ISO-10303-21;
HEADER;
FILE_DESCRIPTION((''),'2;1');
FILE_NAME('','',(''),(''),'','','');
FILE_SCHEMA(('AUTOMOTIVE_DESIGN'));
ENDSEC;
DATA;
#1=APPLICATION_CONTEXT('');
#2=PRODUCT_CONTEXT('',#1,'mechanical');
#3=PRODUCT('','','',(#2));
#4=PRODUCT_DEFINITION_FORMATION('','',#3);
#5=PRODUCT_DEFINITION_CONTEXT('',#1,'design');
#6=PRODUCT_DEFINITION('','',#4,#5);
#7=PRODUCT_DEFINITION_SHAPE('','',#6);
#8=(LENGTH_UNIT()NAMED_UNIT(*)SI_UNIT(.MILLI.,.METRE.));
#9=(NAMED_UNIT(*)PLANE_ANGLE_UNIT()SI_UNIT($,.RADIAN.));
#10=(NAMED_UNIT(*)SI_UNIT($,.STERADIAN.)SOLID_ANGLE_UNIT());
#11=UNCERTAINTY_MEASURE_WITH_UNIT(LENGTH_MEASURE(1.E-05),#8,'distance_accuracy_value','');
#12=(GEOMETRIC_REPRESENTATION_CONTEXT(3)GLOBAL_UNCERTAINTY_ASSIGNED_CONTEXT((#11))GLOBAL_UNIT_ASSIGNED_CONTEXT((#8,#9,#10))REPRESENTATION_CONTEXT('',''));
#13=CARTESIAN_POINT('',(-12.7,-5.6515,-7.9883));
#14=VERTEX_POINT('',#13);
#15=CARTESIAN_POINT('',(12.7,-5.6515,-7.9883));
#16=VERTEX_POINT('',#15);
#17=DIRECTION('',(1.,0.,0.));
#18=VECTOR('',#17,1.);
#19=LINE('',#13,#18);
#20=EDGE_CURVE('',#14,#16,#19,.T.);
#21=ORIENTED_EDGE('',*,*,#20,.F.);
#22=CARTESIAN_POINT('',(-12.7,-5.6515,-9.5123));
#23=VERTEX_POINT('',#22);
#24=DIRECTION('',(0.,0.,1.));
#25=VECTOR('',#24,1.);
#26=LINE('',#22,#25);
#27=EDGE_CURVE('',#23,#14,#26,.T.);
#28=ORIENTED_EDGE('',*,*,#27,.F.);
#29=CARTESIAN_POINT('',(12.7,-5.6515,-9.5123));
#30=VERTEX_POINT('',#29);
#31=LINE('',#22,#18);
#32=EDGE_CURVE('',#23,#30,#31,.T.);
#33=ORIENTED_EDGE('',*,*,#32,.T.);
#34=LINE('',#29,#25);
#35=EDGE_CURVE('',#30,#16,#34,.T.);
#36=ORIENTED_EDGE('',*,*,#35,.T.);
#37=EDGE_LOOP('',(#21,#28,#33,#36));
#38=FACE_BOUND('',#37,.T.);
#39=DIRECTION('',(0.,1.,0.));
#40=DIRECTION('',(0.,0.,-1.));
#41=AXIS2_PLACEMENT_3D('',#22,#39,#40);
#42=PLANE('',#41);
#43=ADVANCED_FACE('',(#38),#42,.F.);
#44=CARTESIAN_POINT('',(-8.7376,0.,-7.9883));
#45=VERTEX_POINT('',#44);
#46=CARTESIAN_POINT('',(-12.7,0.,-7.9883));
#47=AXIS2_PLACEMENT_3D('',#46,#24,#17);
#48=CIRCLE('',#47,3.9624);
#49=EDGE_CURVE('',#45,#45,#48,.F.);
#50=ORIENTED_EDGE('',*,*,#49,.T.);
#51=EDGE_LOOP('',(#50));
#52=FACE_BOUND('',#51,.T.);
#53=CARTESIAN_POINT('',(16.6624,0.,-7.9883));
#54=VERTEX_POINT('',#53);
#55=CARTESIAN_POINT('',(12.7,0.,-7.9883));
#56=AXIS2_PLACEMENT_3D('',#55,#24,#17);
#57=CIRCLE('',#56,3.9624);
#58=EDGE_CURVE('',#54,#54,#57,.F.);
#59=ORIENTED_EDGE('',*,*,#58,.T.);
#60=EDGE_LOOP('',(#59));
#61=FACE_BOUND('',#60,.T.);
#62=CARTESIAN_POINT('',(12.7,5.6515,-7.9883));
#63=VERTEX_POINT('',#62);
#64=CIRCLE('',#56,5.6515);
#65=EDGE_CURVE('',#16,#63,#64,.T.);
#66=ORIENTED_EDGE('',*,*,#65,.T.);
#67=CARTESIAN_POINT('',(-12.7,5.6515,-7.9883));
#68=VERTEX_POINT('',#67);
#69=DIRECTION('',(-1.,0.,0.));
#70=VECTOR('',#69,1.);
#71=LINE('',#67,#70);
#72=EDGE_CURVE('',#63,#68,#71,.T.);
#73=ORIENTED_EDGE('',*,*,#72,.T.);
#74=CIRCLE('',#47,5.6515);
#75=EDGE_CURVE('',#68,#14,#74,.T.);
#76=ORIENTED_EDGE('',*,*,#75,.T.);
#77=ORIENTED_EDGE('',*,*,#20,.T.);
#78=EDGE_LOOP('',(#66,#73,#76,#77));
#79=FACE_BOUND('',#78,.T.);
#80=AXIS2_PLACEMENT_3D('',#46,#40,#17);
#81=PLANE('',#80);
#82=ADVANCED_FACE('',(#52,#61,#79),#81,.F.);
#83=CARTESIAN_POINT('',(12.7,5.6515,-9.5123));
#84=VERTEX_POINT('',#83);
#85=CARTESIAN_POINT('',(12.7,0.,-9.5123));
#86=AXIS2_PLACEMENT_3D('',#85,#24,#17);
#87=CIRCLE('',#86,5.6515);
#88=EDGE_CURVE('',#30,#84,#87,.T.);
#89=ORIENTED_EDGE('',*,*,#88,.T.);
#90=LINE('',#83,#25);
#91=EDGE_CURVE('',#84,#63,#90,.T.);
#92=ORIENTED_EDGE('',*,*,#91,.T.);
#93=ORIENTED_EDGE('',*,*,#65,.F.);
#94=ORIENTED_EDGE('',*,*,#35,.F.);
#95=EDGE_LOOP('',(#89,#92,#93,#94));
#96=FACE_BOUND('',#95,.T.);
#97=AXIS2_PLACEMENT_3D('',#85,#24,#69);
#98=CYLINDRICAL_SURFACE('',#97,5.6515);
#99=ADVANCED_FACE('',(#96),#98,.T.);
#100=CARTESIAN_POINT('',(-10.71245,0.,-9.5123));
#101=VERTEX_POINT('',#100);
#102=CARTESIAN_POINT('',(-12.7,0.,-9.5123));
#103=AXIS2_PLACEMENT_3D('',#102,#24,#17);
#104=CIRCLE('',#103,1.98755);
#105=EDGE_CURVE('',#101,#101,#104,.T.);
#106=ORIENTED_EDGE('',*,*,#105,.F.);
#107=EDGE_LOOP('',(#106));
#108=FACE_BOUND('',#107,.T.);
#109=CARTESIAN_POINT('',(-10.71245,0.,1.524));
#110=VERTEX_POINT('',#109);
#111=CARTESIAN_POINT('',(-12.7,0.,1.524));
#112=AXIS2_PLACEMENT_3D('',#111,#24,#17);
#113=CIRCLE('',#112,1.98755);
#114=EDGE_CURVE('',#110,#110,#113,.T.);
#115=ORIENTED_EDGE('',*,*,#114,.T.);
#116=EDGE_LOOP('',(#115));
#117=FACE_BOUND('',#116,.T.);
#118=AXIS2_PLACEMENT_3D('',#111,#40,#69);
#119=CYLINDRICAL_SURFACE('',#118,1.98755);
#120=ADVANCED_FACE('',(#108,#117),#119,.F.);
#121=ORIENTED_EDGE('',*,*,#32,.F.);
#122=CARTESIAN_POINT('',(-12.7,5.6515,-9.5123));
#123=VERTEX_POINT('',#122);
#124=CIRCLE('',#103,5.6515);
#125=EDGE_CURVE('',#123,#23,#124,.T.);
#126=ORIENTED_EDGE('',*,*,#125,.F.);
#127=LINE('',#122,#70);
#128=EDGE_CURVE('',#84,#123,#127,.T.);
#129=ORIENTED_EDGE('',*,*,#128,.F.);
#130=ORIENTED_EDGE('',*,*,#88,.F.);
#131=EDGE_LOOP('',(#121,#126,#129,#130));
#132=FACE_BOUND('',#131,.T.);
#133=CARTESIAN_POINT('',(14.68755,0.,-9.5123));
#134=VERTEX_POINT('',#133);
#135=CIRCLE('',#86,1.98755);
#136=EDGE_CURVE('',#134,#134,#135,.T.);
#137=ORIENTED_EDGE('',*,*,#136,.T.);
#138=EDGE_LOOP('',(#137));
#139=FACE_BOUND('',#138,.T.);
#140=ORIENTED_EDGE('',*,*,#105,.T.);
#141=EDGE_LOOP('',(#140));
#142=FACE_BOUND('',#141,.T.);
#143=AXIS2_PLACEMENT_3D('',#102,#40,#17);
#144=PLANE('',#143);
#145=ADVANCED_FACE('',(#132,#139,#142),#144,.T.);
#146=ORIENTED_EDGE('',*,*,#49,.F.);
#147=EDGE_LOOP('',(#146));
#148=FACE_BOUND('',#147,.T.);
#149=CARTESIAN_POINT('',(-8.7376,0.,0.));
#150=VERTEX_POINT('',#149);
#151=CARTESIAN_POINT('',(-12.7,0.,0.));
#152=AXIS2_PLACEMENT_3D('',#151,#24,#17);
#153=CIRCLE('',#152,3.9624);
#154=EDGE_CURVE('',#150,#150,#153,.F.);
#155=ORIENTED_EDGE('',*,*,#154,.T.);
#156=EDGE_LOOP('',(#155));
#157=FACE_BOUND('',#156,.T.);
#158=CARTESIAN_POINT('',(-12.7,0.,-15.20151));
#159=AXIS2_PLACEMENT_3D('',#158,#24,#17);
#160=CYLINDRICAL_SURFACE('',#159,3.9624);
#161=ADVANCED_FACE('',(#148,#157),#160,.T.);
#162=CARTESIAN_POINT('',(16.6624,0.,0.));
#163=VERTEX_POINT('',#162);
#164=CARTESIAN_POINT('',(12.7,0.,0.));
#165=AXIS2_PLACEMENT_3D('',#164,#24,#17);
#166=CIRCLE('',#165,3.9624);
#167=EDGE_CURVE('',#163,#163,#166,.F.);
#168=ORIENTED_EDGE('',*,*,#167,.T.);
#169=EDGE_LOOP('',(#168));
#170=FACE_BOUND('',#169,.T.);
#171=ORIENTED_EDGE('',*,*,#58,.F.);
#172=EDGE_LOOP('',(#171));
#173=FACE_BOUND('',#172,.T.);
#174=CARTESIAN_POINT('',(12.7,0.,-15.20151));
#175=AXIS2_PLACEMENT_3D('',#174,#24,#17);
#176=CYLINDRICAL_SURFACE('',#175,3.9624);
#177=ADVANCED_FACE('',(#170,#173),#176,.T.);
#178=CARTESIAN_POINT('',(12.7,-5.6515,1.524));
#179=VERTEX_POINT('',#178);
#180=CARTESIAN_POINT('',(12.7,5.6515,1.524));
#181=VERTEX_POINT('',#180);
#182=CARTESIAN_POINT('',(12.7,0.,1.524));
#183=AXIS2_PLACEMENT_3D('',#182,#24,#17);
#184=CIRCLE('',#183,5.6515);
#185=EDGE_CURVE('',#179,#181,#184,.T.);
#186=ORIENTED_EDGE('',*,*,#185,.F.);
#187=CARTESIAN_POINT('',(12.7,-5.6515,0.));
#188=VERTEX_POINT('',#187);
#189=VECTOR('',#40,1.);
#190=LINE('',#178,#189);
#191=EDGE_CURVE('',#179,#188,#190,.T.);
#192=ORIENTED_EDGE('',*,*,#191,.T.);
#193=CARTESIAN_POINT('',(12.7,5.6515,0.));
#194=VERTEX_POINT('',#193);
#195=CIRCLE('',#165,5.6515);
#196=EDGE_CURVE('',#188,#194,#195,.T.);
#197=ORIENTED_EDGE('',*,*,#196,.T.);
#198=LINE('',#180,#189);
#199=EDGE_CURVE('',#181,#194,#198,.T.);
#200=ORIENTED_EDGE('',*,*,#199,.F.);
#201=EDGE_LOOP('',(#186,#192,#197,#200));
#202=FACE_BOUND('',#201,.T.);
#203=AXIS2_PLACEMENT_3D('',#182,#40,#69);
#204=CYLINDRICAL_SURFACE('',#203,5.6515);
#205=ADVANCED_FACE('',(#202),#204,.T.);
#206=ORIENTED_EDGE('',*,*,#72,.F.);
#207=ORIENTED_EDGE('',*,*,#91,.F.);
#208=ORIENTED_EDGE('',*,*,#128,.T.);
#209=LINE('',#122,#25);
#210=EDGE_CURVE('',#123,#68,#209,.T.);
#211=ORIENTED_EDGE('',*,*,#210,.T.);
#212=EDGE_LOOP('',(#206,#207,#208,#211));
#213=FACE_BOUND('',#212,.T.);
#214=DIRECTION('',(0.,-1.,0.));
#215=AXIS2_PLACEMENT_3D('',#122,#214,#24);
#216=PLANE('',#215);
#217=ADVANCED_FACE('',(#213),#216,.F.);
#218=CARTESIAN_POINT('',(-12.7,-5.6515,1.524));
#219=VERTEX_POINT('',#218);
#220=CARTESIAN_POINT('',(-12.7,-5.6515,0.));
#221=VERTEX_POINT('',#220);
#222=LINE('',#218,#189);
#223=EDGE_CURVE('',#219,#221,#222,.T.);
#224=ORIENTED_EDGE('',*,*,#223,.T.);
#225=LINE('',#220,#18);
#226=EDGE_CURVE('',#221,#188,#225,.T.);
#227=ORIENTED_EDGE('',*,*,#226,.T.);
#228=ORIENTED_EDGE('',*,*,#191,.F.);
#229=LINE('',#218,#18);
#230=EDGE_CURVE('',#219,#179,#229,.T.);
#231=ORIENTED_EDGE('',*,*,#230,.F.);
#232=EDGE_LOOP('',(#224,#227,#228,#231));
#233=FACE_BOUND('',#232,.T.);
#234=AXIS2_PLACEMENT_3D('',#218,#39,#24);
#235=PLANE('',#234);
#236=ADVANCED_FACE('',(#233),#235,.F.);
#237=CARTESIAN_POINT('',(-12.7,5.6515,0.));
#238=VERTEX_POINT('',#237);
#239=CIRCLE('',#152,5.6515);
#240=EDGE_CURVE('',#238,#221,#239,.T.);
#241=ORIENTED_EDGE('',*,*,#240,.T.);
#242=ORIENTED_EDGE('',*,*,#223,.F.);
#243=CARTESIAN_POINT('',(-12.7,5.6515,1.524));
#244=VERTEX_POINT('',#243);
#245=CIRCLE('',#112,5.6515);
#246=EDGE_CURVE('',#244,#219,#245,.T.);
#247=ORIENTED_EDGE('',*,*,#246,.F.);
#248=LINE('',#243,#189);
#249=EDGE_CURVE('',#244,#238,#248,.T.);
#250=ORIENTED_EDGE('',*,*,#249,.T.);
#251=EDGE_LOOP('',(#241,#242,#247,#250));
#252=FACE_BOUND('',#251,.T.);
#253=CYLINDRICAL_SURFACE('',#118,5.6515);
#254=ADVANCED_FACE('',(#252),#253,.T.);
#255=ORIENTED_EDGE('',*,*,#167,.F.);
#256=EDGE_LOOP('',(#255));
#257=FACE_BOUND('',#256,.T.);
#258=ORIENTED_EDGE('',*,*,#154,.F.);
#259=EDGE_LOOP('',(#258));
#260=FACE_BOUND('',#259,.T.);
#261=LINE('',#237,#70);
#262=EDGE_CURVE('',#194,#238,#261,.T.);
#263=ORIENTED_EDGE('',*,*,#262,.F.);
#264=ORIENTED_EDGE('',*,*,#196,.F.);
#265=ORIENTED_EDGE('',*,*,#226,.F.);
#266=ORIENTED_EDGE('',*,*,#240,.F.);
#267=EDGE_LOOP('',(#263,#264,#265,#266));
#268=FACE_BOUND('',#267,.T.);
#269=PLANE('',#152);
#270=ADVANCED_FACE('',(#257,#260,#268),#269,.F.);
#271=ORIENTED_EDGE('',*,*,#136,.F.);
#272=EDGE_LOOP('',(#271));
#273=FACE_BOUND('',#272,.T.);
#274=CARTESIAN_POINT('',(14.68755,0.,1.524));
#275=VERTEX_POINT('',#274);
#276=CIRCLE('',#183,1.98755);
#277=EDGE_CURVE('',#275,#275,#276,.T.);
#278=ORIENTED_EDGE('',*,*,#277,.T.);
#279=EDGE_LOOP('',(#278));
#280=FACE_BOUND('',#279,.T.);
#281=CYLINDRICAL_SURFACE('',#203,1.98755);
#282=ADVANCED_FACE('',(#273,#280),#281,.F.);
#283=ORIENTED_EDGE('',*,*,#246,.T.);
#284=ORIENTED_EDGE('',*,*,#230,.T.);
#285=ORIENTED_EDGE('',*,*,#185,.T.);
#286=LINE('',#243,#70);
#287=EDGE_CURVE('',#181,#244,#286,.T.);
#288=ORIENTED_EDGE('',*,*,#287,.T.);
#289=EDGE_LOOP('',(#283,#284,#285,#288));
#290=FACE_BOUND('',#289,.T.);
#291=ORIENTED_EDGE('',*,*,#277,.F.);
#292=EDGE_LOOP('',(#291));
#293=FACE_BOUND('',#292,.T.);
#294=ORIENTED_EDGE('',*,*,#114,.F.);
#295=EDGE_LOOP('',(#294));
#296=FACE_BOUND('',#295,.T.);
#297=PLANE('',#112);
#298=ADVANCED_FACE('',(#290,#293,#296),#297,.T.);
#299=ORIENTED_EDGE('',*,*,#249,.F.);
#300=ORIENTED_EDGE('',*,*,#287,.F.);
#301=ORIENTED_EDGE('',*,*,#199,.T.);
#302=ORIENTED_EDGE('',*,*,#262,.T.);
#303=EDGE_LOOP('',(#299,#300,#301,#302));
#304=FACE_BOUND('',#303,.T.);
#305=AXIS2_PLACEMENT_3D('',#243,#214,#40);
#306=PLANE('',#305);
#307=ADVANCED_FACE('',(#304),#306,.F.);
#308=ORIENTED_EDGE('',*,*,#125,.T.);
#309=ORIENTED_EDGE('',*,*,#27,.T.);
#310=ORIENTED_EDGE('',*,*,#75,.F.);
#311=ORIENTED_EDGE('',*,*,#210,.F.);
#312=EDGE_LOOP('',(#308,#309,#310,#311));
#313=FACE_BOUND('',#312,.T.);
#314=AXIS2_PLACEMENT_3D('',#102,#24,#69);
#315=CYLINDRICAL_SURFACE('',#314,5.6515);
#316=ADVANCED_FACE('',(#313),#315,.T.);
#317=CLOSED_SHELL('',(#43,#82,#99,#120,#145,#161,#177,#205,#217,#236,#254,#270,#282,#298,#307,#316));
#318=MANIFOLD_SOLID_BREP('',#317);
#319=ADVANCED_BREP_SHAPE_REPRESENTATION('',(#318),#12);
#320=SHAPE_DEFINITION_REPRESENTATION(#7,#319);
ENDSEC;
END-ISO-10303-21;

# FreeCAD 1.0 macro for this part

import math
import FreeCAD as App
import Part
import Sketcher
from FreeCAD import Vector
Q = App.Units.Quantity

doc = App.newDocument("Part")
body = doc.addObject("PartDesign::Body", "Body")

sketch1 = body.newObject("Sketcher::SketchObject", "Sketch")
sketch1.AttachmentSupport = (doc.getObject("XY_Plane"), [""])
sketch1.MapMode = "FlatFace"
sketch1.addGeometry(Part.LineSegment(Vector(12.7, 5.7, 0), Vector(-12.7, 5.7, 0)), False)
sketch1.addGeometry(Part.ArcOfCircle(Part.Circle(Vector(-12.7, 0, 0), Vector(0, 0, 1), 5.7), math.radians(90), math.radians(270)), False)
sketch1.addGeometry(Part.LineSegment(Vector(-12.7, -5.7, 0), Vector(12.7, -5.7, 0)), False)
sketch1.addGeometry(Part.ArcOfCircle(Part.Circle(Vector(12.7, 0, 0), Vector(0, 0, 1), 5.7), math.radians(-90), math.radians(90)), False)
sketch1.addGeometry(Part.Circle(Vector(12.7, 0, 0), Vector(0, 0, 1), 2), False)
sketch1.addGeometry(Part.Circle(Vector(-12.7, 0, 0), Vector(0, 0, 1), 2), False)
sketch1.addConstraint(Sketcher.Constraint("Tangent", 0, 2, 1, 1))
sketch1.addConstraint(Sketcher.Constraint("Tangent", 1, 2, 2, 1))
sketch1.addConstraint(Sketcher.Constraint("Tangent", 2, 2, 3, 1))
sketch1.addConstraint(Sketcher.Constraint("Tangent", 3, 2, 0, 1))
sketch1.addConstraint(Sketcher.Constraint("Horizontal", 0))
sketch1.addConstraint(Sketcher.Constraint("Horizontal", 2))
sketch1.addConstraint(Sketcher.Constraint("Coincident", 4, 3, 3, 3))
sketch1.addConstraint(Sketcher.Constraint("Coincident", 5, 3, 1, 3))
sketch1.addConstraint(Sketcher.Constraint("Equal", 4, 5))
sketch1.addConstraint(Sketcher.Constraint("Symmetric", 1, 3, 3, 3, -1, 1))
sketch1.addConstraint(Sketcher.Constraint("DistanceX", 0, 2, 0, 1, Q("1 in")))
sketch1.addConstraint(Sketcher.Constraint("Diameter", 4, Q("0.1565 in")))
sketch1.addConstraint(Sketcher.Constraint("Radius", 1, Q("0.2225 in")))
pad1 = body.newObject("PartDesign::Pad", "Pad")
pad1.Profile = sketch1
pad1.Length = Q("0.06 in")

sketch2 = body.newObject("Sketcher::SketchObject", "Sketch001")
sketch2.AttachmentSupport = (doc.getObject("XY_Plane"), [""])
sketch2.MapMode = "FlatFace"
sketch2.addGeometry(Part.Circle(Vector(12.7, 0, 0), Vector(0, 0, 1), 4), False)
sketch2.addGeometry(Part.Circle(Vector(12.7, 0, 0), Vector(0, 0, 1), 2), False)
sketch2.addGeometry(Part.Circle(Vector(-12.7, 0, 0), Vector(0, 0, 1), 4), False)
sketch2.addGeometry(Part.Circle(Vector(-12.7, 0, 0), Vector(0, 0, 1), 2), False)
sketch2.addConstraint(Sketcher.Constraint("Coincident", 1, 3, 0, 3))
sketch2.addConstraint(Sketcher.Constraint("Coincident", 3, 3, 2, 3))
sketch2.addConstraint(Sketcher.Constraint("Equal", 0, 2))
sketch2.addConstraint(Sketcher.Constraint("Equal", 1, 3))
sketch2.addConstraint(Sketcher.Constraint("Symmetric", 0, 3, 2, 3, -1, 1))
sketch2.addConstraint(Sketcher.Constraint("PointOnObject", 0, 3, -1))
sketch2.addConstraint(Sketcher.Constraint("Diameter", 0, Q("0.312 in")))
sketch2.addConstraint(Sketcher.Constraint("DistanceX", 2, 3, 0, 3, Q("1 in")))
sketch2.addConstraint(Sketcher.Constraint("Diameter", 1, Q("0.1565 in")))
pad2 = body.newObject("PartDesign::Pad", "Pad001")
pad2.Profile = sketch2
pad2.Length = 3.99415
pad2.Reversed = True
doc.recompute()

datumplane = body.newObject("PartDesign::Plane", "DatumPlane")
datumplane.AttachmentSupport = (doc.getObject("XY_Plane"), [""])
datumplane.MapMode = "FlatFace"
datumplane.AttachmentOffset = App.Placement(Vector(0, 0, -3.99415), App.Rotation())
mirrored = body.newObject("PartDesign::Mirrored", "Mirrored")
mirrored.Originals = [pad1, pad2]
mirrored.MirrorPlane = (datumplane, [""])
body.Tip = mirrored

doc.recompute()
